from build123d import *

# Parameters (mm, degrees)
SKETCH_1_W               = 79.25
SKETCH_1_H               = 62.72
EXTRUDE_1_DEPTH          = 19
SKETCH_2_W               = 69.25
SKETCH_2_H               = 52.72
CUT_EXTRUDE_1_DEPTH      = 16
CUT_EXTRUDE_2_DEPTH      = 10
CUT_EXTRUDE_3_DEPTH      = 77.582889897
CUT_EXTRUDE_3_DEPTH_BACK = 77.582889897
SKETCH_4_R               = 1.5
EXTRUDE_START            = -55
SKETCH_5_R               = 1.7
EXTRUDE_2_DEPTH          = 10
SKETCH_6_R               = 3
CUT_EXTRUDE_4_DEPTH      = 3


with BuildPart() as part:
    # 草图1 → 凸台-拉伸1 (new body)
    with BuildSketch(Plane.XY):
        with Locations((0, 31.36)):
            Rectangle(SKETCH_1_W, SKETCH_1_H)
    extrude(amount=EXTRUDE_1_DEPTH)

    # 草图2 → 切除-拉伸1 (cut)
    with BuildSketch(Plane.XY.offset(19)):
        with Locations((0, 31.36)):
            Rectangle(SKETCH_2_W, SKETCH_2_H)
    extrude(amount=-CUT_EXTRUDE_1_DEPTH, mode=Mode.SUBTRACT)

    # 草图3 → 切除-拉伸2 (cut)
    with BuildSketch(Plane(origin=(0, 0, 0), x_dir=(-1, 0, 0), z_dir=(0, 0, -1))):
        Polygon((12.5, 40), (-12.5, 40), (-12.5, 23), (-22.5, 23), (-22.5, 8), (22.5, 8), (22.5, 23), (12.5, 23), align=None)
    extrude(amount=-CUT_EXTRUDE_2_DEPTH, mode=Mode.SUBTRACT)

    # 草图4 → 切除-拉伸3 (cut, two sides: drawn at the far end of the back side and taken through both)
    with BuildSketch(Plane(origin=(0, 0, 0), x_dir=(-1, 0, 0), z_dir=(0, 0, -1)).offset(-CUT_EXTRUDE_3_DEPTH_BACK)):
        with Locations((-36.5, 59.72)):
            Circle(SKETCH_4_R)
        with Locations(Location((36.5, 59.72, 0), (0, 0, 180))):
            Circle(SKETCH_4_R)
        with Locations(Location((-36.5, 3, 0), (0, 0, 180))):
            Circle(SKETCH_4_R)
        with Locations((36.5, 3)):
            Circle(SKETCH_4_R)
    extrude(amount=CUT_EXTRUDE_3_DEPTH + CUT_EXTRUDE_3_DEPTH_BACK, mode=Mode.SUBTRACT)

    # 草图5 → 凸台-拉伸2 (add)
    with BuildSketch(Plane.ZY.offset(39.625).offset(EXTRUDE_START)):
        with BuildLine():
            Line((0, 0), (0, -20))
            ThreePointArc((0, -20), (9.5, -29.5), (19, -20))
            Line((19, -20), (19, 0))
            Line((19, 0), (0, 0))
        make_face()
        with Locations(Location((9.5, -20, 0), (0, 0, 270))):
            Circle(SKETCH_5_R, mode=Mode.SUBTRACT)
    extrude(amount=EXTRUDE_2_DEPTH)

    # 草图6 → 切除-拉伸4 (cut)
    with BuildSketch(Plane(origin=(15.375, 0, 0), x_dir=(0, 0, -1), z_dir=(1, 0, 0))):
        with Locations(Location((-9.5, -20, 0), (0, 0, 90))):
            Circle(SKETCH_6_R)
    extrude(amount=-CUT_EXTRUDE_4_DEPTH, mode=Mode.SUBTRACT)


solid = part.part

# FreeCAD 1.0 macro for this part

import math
import FreeCAD as App
import Part
import Sketcher

V = App.Vector
Q = App.Units.Quantity


def add_polygon(sketch, points):
    """Adds a closed chain of lines whose ends are joined by coincident constraints."""
    first, n = sketch.GeometryCount, len(points)
    for a, b in zip(points, points[1:] + points[:1]):
        sketch.addGeometry(Part.LineSegment(App.Vector(*a, 0), App.Vector(*b, 0)), False)
    for i in range(n):
        sketch.addConstraint(Sketcher.Constraint("Coincident", first + i, 2, first + (i + 1) % n, 1))

doc = App.newDocument("Part")
body = doc.addObject("PartDesign::Body", "Body")

# Sketch on XY plane
sketch1 = doc.addObject("Sketcher::SketchObject", "Sketch")
body.addObject(sketch1)
sketch1.AttachmentSupport = (doc.XY_Plane, [""])
sketch1.MapMode = "FlatFace"
add_polygon(sketch1, [(-40, 63), (-40, 0), (40, 0), (40, 63)])  # lines 0-3
sketch1.addConstraint(Sketcher.Constraint("Vertical", 0))
sketch1.addConstraint(Sketcher.Constraint("Horizontal", 1))
sketch1.addConstraint(Sketcher.Constraint("Vertical", 2))
sketch1.addConstraint(Sketcher.Constraint("Horizontal", 3))
sketch1.addConstraint(Sketcher.Constraint("Symmetric", 0, 2, 1, 2, -1, 1))
sketch1.addConstraint(Sketcher.Constraint("DistanceX", 1, 1, 1, 2, Q("79.25 mm")))
sketch1.addConstraint(Sketcher.Constraint("DistanceY", 0, 2, 0, 1, Q("62.72 mm")))
pad1 = doc.addObject("PartDesign::Pad", "Pad")
body.addObject(pad1)
pad1.Profile = sketch1
pad1.Length = 19

# Sketch on XY plane
sketch2 = doc.addObject("Sketcher::SketchObject", "Sketch001")
body.addObject(sketch2)
sketch2.AttachmentSupport = (doc.XY_Plane, [""])
sketch2.MapMode = "FlatFace"
sketch2.AttachmentOffset = App.Placement(V(0, 0, 19), App.Rotation())
add_polygon(sketch2, [(-35, 58), (-35, 5), (35, 5), (35, 58)])  # lines 0-3
sketch2.addConstraint(Sketcher.Constraint("Vertical", 0))
sketch2.addConstraint(Sketcher.Constraint("Horizontal", 1))
sketch2.addConstraint(Sketcher.Constraint("Vertical", 2))
sketch2.addConstraint(Sketcher.Constraint("Horizontal", 3))
sketch2.addConstraint(Sketcher.Constraint("DistanceY", -1, 1, 0, 2, Q("5 mm")))
sketch2.addConstraint(Sketcher.Constraint("DistanceX", 1, 1, 1, 2, Q("69.25 mm")))
sketch2.addConstraint(Sketcher.Constraint("DistanceY", 0, 2, 0, 1, Q("52.72 mm")))
sketch2.addConstraint(Sketcher.Constraint("DistanceX", 0, 2, -1, 1, Q("34.625 mm")))
pocket1 = doc.addObject("PartDesign::Pocket", "Pocket")
body.addObject(pocket1)
pocket1.Profile = sketch2
pocket1.Length = 16

# Sketch on XY plane
sketch3 = doc.addObject("Sketcher::SketchObject", "Sketch002")
body.addObject(sketch3)
sketch3.AttachmentSupport = (doc.XY_Plane, [""])
sketch3.MapMode = "FlatFace"
add_polygon(sketch3, [(-12, 40), (12, 40), (12, 23), (22, 23), (22, 8), (-22, 8), (-22, 23), (-12, 23)])  # lines 0-7
sketch3.addConstraint(Sketcher.Constraint("Horizontal", 0))
sketch3.addConstraint(Sketcher.Constraint("Vertical", 1))
sketch3.addConstraint(Sketcher.Constraint("Horizontal", 2))
sketch3.addConstraint(Sketcher.Constraint("Vertical", 3))
sketch3.addConstraint(Sketcher.Constraint("Horizontal", 4))
sketch3.addConstraint(Sketcher.Constraint("Vertical", 5))
sketch3.addConstraint(Sketcher.Constraint("Horizontal", 6))
sketch3.addConstraint(Sketcher.Constraint("Vertical", 7))
sketch3.addConstraint(Sketcher.Constraint("Symmetric", 2, 2, 5, 2, -2))
sketch3.addConstraint(Sketcher.Constraint("Equal", 2, 6))
sketch3.addConstraint(Sketcher.Constraint("DistanceX", 0, 1, 0, 2, Q("25 mm")))
sketch3.addConstraint(Sketcher.Constraint("DistanceX", 2, 1, 2, 2, Q("10 mm")))
sketch3.addConstraint(Sketcher.Constraint("DistanceY", 1, 2, 1, 1, Q("17 mm")))
sketch3.addConstraint(Sketcher.Constraint("DistanceY", 3, 2, 3, 1, Q("15 mm")))
sketch3.addConstraint(Sketcher.Constraint("DistanceY", -1, 1, 0, 2, Q("40 mm")))
pocket2 = doc.addObject("PartDesign::Pocket", "Pocket001")
body.addObject(pocket2)
pocket2.Profile = sketch3
pocket2.Length = 10
pocket2.Reversed = True

# Sketch on XY plane
sketch4 = doc.addObject("Sketcher::SketchObject", "Sketch003")
body.addObject(sketch4)
sketch4.AttachmentSupport = (doc.XY_Plane, [""])
sketch4.MapMode = "FlatFace"
sketch4.addGeometry(Part.Circle(V(36.5, 59.7, 0), V(0, 0, 1), 1.5), False)
sketch4.addGeometry(Part.Circle(V(-36.5, 59.7, 0), V(0, 0, 1), 1.5), False)
sketch4.addGeometry(Part.Circle(V(36.5, 3, 0), V(0, 0, 1), 1.5), False)
sketch4.addGeometry(Part.Circle(V(-36.5, 3, 0), V(0, 0, 1), 1.5), False)
sketch4.addConstraint(Sketcher.Constraint("Equal", 0, 1))
sketch4.addConstraint(Sketcher.Constraint("Equal", 1, 2))
sketch4.addConstraint(Sketcher.Constraint("Equal", 2, 3))
sketch4.addConstraint(Sketcher.Constraint("Symmetric", 0, 3, 1, 3, -2))
sketch4.addConstraint(Sketcher.Constraint("Symmetric", 2, 3, 3, 3, -2))
sketch4.addConstraint(Sketcher.Constraint("Vertical", 0, 3, 2, 3))
sketch4.addConstraint(Sketcher.Constraint("Diameter", 0, Q("3 mm")))
sketch4.addConstraint(Sketcher.Constraint("DistanceY", -1, 1, 2, 3, Q("3 mm")))
sketch4.addConstraint(Sketcher.Constraint("DistanceX", 1, 3, 0, 3, Q("73 mm")))
sketch4.addConstraint(Sketcher.Constraint("DistanceY", -1, 1, 0, 3, Q("59.72 mm")))
pocket3 = doc.addObject("PartDesign::Pocket", "Pocket002")
body.addObject(pocket3)
pocket3.Profile = sketch4
pocket3.Type = "ThroughAll"
pocket3.Midplane = True

# Sketch on YZ plane
sketch5 = doc.addObject("Sketcher::SketchObject", "Sketch004")
body.addObject(sketch5)
sketch5.AttachmentSupport = (doc.YZ_Plane, [""])
sketch5.MapMode = "FlatFace"
sketch5.AttachmentOffset = App.Placement(V(0, 0, 15.375), App.Rotation())
sketch5.addGeometry(Part.LineSegment(V(0, 0, 0), V(-20, 0, 0)), False)
sketch5.addGeometry(Part.ArcOfCircle(Part.Circle(V(-20, 9.5, 0), V(0, 0, 1), 9.5), math.radians(90), math.radians(270)), False)
sketch5.addGeometry(Part.LineSegment(V(-20, 19, 0), V(0, 19, 0)), False)
sketch5.addGeometry(Part.LineSegment(V(0, 19, 0), V(0, 0, 0)), False)
sketch5.addGeometry(Part.Circle(V(-20, 9.5, 0), V(0, 0, 1), 1.7), False)
sketch5.addConstraint(Sketcher.Constraint("Tangent", 0, 2, 1, 2))
sketch5.addConstraint(Sketcher.Constraint("Tangent", 1, 1, 2, 1))
sketch5.addConstraint(Sketcher.Constraint("Coincident", 2, 2, 3, 1))
sketch5.addConstraint(Sketcher.Constraint("Coincident", 3, 2, 0, 1))
sketch5.addConstraint(Sketcher.Constraint("Horizontal", 0))
sketch5.addConstraint(Sketcher.Constraint("Horizontal", 2))
sketch5.addConstraint(Sketcher.Constraint("Vertical", 3))
sketch5.addConstraint(Sketcher.Constraint("Coincident", 3, 2, -1, 1))
sketch5.addConstraint(Sketcher.Constraint("Coincident", 4, 3, 1, 3))
sketch5.addConstraint(Sketcher.Constraint("Diameter", 4, Q("3.4 mm")))
sketch5.addConstraint(Sketcher.Constraint("Radius", 1, Q("9.5 mm")))
sketch5.addConstraint(Sketcher.Constraint("DistanceX", 0, 2, 0, 1, Q("20 mm")))
pad2 = doc.addObject("PartDesign::Pad", "Pad001")
body.addObject(pad2)
pad2.Profile = sketch5
pad2.Length = 10
pad2.Reversed = True

# Sketch on YZ plane
sketch6 = doc.addObject("Sketcher::SketchObject", "Sketch005")
body.addObject(sketch6)
sketch6.AttachmentSupport = (doc.YZ_Plane, [""])
sketch6.MapMode = "FlatFace"
sketch6.AttachmentOffset = App.Placement(V(0, 0, 15.375), App.Rotation())
sketch6.addGeometry(Part.Circle(V(-20, 9.5, 0), V(0, 0, 1), 3), False)
sketch6.addConstraint(Sketcher.Constraint("Diameter", 0, Q("6 mm")))
sketch6.addConstraint(Sketcher.Constraint("DistanceX", 0, 3, -1, 1, Q("20 mm")))
sketch6.addConstraint(Sketcher.Constraint("DistanceY", -1, 1, 0, 3, Q("9.5 mm")))
pocket4 = doc.addObject("PartDesign::Pocket", "Pocket003")
body.addObject(pocket4)
pocket4.Profile = sketch6
pocket4.Length = 3

doc.recompute()
